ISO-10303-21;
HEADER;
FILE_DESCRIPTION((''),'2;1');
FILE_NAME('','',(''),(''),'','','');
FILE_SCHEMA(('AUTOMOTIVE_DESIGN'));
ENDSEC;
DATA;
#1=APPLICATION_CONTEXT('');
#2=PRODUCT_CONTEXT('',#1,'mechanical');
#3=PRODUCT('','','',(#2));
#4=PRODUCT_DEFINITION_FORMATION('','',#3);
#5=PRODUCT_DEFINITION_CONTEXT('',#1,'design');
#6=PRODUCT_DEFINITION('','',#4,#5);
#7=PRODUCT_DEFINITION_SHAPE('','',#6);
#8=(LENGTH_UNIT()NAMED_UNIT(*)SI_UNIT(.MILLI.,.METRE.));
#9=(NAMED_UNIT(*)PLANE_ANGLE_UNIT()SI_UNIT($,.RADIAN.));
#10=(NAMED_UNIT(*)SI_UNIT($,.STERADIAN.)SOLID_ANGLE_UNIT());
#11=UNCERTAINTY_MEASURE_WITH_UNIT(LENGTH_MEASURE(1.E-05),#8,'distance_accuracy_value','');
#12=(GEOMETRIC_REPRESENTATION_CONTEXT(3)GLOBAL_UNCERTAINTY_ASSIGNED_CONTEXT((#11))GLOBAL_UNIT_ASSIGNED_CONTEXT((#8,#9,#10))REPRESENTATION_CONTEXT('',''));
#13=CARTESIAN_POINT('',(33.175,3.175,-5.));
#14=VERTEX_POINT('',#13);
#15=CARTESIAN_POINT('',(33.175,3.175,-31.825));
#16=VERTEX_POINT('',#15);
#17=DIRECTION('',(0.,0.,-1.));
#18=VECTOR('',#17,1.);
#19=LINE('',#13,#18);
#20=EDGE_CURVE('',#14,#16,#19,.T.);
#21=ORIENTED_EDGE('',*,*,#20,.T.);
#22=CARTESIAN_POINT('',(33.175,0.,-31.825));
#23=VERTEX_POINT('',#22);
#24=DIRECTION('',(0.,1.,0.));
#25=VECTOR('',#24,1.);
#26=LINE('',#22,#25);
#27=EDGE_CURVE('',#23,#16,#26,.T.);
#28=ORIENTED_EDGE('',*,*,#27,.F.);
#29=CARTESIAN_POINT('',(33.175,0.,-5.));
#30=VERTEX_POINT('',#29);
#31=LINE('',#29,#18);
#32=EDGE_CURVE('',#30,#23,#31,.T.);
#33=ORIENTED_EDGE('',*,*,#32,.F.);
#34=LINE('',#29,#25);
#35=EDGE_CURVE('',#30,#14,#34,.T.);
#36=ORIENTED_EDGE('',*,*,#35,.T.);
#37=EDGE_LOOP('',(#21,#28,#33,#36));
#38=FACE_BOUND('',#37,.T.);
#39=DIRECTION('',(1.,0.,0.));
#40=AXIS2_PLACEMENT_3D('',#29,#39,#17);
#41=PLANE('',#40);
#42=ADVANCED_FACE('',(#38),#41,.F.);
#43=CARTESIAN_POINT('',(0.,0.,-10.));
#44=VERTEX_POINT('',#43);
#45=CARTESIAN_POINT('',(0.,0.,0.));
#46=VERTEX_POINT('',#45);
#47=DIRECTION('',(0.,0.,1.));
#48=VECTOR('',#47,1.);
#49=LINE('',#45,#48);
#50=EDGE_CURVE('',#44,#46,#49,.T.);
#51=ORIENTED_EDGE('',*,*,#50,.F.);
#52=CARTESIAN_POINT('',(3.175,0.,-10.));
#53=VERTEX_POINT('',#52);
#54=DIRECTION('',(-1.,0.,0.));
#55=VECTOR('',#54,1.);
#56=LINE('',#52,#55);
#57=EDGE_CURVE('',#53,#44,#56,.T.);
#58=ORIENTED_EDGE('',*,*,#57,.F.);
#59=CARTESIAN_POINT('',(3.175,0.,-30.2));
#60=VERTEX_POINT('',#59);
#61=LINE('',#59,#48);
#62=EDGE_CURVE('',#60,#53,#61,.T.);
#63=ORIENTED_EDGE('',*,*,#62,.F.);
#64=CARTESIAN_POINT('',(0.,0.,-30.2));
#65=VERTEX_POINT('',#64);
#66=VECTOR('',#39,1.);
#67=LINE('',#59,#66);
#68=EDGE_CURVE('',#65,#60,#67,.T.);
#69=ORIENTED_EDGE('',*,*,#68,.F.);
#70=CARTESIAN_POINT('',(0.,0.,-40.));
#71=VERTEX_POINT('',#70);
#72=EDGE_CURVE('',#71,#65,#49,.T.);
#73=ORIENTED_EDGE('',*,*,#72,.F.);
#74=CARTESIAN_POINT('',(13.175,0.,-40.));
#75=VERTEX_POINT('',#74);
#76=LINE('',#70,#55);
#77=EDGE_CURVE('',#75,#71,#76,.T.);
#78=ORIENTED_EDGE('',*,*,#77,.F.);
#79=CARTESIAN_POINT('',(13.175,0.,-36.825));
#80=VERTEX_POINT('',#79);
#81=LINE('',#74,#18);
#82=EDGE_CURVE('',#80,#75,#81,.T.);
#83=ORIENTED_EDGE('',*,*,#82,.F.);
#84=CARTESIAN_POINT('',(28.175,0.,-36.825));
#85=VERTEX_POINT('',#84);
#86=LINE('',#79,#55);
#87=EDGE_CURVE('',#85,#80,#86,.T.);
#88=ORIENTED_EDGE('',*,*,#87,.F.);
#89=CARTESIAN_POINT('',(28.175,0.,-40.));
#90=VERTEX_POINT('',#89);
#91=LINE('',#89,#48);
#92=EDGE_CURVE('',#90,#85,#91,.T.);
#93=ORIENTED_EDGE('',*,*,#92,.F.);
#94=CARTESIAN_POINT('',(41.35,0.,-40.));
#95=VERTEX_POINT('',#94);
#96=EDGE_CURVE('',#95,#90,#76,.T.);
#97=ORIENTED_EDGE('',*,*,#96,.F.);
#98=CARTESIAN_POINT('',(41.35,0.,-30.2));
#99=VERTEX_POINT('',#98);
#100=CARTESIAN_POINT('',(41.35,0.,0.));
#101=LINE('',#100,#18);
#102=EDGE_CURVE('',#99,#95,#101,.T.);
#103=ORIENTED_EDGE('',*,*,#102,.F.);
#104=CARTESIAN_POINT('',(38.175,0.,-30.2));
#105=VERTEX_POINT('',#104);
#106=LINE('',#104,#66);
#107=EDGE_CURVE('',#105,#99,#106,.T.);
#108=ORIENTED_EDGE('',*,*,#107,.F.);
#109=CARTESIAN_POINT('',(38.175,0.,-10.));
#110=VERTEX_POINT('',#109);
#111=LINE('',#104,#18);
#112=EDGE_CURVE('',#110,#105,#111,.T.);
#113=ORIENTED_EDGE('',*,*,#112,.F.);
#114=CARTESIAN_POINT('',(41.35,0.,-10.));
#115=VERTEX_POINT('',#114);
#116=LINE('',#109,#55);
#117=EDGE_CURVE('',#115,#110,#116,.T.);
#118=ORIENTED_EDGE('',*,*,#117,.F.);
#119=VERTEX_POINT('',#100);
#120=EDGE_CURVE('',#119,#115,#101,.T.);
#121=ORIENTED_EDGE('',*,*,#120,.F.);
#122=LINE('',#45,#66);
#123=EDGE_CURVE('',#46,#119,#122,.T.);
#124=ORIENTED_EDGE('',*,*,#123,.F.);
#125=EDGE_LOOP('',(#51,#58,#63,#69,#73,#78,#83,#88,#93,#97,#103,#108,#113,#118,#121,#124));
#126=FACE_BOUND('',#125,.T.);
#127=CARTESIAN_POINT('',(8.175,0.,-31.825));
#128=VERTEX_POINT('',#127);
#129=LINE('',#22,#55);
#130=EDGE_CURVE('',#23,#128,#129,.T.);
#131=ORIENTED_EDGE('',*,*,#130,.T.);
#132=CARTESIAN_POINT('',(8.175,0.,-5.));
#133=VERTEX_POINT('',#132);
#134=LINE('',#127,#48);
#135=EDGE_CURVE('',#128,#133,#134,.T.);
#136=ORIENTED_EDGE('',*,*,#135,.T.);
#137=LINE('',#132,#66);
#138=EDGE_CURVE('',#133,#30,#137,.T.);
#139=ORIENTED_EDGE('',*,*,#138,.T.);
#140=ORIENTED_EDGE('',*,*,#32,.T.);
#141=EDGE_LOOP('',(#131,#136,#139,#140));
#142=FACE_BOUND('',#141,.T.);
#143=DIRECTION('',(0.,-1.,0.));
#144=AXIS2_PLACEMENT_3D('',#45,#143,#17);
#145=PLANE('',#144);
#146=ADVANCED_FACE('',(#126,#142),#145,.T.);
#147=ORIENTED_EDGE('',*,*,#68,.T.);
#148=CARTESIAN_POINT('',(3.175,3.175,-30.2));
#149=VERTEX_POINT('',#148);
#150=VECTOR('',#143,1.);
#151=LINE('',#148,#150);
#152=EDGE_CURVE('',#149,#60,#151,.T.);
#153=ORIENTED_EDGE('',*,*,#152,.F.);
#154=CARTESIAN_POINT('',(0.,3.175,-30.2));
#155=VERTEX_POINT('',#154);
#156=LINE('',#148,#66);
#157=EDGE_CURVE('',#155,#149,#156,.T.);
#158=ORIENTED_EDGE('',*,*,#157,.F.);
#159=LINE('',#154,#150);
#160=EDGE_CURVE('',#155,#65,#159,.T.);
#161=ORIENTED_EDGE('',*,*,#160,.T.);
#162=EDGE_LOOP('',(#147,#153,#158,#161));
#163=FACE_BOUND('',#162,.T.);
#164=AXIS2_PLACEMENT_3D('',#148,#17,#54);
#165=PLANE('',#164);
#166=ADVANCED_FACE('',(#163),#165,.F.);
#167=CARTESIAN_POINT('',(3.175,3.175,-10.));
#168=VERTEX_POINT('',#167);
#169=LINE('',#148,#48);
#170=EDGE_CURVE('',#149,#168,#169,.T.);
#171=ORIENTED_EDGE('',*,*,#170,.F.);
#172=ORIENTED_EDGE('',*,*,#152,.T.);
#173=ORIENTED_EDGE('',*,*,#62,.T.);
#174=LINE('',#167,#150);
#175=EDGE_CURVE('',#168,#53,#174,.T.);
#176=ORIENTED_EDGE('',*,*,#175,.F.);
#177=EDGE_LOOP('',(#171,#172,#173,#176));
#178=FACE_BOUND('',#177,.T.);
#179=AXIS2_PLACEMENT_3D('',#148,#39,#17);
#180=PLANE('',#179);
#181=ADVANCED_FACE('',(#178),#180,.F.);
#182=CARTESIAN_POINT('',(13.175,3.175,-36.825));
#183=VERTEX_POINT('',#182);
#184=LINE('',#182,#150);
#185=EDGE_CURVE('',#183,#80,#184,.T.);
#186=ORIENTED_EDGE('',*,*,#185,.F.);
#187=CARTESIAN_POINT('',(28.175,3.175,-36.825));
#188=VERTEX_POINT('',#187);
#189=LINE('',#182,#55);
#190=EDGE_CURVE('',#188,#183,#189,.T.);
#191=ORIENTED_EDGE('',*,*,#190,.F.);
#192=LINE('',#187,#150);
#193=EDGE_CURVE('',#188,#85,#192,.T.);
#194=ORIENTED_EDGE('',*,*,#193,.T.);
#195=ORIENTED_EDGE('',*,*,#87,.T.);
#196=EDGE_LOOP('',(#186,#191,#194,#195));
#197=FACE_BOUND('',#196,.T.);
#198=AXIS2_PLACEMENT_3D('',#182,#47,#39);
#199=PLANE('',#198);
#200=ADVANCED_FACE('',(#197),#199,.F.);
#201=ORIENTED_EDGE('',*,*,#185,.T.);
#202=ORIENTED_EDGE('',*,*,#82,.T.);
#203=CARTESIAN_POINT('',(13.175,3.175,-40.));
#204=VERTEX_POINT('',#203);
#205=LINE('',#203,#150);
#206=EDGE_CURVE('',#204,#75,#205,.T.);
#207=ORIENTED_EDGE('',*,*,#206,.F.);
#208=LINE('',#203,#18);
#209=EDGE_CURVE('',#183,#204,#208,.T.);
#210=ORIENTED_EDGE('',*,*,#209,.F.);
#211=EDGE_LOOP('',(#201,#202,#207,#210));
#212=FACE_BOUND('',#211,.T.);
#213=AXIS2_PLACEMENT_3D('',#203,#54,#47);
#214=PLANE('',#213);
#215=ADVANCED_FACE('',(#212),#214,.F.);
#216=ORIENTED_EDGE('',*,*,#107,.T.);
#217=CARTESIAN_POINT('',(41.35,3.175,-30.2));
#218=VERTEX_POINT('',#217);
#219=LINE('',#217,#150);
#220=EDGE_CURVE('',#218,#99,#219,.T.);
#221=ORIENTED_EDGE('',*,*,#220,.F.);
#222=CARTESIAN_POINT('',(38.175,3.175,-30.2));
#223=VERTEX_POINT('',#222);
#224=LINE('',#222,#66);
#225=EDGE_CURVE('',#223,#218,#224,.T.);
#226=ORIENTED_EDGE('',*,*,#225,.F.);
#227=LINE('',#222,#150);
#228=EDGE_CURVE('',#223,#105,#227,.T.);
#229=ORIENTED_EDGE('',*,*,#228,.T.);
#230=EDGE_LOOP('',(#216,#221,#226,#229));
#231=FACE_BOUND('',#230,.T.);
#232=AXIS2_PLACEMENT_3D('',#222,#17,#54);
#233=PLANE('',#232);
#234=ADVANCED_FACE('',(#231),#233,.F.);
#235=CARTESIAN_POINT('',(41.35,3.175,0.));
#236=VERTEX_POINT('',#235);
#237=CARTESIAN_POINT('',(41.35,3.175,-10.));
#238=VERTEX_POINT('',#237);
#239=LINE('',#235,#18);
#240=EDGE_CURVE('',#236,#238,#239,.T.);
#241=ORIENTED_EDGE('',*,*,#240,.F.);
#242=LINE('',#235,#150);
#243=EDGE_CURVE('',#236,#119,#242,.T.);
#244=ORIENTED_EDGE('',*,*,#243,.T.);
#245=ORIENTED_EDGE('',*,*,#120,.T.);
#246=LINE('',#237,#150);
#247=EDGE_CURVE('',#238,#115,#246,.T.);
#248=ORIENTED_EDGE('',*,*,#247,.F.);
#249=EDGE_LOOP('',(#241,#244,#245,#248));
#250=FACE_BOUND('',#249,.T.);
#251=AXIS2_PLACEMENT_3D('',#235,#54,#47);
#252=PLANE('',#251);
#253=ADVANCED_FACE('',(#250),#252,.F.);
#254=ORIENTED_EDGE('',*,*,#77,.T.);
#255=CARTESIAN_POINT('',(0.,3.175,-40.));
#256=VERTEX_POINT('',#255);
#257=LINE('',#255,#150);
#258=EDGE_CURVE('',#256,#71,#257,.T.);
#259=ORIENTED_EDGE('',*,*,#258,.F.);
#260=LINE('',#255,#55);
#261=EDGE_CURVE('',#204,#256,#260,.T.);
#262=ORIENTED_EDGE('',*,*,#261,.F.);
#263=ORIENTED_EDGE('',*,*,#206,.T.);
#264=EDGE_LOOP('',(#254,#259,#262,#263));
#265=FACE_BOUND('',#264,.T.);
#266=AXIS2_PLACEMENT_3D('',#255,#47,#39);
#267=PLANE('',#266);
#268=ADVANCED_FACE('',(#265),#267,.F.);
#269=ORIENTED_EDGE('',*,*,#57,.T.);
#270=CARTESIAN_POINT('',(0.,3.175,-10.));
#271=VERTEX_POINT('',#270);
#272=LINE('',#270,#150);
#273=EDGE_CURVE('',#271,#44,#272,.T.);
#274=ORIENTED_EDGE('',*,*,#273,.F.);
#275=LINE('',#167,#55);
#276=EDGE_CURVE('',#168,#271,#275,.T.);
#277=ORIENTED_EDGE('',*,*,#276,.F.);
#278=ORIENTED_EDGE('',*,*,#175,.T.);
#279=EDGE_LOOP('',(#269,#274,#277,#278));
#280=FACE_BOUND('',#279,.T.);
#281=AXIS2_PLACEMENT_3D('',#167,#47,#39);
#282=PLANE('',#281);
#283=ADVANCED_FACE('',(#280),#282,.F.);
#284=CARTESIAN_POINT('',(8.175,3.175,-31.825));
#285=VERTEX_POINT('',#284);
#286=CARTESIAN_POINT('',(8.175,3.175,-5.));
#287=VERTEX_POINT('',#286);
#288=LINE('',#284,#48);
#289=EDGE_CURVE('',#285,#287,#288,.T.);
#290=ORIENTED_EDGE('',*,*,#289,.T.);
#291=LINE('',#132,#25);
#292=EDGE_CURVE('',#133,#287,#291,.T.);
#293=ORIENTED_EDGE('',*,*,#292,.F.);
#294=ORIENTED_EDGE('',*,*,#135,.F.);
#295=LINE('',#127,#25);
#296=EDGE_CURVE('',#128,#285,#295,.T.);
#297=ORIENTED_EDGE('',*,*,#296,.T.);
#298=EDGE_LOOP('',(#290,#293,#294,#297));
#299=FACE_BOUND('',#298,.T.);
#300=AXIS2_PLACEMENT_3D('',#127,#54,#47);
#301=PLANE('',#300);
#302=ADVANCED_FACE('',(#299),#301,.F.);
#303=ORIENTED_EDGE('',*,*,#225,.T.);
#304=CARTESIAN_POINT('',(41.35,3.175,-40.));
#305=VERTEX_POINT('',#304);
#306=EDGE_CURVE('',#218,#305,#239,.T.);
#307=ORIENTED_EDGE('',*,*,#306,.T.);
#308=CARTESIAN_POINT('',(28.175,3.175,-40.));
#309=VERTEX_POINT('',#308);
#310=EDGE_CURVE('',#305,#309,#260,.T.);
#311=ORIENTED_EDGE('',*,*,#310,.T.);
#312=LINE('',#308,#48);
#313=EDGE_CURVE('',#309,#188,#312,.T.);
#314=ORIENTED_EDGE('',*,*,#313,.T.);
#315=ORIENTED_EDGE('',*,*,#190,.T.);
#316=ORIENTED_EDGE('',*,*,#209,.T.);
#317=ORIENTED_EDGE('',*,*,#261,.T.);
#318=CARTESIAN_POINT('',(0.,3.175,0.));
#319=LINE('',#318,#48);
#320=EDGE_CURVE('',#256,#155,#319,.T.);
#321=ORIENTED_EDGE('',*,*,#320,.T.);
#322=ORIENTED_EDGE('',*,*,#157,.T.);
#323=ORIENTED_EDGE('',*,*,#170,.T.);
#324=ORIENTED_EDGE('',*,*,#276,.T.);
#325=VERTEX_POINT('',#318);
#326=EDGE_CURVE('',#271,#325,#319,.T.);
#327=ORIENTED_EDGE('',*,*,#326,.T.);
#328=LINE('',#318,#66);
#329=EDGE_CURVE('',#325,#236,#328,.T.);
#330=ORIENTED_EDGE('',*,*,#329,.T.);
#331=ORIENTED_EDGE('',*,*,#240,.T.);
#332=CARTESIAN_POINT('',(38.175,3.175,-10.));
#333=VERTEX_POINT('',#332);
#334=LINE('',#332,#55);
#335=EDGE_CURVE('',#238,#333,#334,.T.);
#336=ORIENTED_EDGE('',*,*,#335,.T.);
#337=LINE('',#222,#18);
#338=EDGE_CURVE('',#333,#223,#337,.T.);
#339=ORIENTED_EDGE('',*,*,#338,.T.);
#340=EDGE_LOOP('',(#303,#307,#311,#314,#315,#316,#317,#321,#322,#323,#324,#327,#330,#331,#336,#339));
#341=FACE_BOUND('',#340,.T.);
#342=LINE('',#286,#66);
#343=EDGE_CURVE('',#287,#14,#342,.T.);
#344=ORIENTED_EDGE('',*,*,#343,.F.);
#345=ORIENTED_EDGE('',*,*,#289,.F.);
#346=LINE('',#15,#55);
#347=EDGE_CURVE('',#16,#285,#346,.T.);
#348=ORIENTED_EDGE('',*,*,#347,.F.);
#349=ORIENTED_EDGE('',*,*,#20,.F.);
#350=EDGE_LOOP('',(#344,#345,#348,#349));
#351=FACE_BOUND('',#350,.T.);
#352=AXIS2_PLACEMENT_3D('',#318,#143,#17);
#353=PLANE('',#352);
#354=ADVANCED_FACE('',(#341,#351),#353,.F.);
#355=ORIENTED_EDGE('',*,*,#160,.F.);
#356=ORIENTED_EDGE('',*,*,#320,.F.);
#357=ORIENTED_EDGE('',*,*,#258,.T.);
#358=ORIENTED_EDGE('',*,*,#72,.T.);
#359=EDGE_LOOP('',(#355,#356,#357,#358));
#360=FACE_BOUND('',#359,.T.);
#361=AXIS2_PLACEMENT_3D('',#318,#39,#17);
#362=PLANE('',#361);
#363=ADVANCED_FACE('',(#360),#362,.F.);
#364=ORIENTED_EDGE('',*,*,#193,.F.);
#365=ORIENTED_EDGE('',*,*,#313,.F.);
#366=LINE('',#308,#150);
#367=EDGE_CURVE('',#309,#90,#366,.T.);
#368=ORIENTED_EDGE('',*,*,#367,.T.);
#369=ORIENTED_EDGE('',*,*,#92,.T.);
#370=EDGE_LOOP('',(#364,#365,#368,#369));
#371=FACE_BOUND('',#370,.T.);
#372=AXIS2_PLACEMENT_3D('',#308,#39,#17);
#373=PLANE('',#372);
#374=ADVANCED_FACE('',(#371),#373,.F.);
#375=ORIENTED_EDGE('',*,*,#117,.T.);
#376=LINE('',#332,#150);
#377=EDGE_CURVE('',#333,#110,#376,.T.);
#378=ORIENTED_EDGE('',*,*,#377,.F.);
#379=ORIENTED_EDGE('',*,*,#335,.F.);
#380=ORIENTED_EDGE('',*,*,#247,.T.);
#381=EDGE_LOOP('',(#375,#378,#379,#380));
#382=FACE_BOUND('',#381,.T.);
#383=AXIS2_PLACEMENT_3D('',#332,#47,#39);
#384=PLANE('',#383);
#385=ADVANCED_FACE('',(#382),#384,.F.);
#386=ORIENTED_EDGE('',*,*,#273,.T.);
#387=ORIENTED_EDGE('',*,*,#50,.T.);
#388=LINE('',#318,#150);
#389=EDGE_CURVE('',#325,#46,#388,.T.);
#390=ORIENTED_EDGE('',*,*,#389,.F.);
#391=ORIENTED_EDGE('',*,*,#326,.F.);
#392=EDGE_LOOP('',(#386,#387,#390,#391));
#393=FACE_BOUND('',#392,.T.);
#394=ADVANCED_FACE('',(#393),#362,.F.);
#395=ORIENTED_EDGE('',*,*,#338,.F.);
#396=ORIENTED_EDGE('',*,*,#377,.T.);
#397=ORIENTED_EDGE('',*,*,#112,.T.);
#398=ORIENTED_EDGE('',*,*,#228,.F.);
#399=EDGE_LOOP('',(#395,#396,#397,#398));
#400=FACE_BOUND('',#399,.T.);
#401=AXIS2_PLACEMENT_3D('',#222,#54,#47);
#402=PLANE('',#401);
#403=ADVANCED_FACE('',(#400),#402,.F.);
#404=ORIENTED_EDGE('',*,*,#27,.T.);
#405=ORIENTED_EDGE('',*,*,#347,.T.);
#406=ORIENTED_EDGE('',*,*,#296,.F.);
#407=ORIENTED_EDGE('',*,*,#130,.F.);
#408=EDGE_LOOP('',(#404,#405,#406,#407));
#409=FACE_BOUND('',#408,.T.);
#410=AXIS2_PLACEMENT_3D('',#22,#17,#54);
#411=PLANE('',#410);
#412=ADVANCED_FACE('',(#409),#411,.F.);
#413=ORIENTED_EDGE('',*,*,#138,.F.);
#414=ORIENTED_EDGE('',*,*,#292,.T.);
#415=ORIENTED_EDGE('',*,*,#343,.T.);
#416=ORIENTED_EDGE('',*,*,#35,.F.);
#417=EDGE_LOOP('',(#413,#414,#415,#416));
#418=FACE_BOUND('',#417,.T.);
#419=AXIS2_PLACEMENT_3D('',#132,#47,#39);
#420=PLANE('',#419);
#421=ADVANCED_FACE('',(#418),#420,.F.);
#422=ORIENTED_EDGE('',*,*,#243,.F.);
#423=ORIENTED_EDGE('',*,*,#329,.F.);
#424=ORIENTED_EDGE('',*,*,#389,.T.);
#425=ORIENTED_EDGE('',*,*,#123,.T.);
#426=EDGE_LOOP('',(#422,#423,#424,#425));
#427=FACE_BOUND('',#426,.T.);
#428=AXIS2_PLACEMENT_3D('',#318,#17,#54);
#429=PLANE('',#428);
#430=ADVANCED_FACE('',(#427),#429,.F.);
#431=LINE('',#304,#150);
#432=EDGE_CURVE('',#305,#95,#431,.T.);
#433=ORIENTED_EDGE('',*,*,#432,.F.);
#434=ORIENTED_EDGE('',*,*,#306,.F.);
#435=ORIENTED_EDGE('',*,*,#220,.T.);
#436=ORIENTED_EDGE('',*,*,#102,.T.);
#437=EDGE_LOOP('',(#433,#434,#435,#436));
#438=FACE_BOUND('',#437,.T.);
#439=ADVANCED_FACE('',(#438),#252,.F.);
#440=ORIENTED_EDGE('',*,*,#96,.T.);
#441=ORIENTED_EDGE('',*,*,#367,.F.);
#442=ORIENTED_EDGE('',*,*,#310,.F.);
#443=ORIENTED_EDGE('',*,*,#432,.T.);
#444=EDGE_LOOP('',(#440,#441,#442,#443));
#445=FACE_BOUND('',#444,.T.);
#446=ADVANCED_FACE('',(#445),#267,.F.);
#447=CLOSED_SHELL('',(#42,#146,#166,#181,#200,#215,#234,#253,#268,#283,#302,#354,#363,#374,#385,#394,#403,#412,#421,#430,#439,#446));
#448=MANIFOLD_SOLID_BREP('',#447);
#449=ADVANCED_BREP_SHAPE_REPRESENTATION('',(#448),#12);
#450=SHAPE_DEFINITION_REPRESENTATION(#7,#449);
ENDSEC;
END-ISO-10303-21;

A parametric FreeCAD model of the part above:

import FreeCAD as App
import Part
import Sketcher
from FreeCAD import Vector

doc = App.newDocument("Part")
params = doc.addObject("Spreadsheet::Sheet", "Params")
for row, (alias, value) in enumerate([
    ("sketch1_height", "40 mm"),
    ("sketch1_width", "41.35 mm"),
    ("pad1_length", "3.175 mm"),
    ("sketch2_width", "15 mm"),
    ("sketch2_height", "20.2 mm"),
    ("sketch3_width", "25 mm"),
], start=1):
    params.set(f"A{row}", alias)
    params.set(f"B{row}", "=" + value)
    params.setAlias(f"B{row}", alias)

body = doc.addObject("PartDesign::Body", "Body")

# Sketch on XZ plane
sketch1 = body.newObject("Sketcher::SketchObject", "Sketch")
sketch1.AttachmentSupport = (doc.getObject("XZ_Plane"), [""])
sketch1.MapMode = "FlatFace"
sketch1.addGeometry([
    Part.LineSegment(Vector(0, -40, 0), Vector(0, 0, 0)),
    Part.LineSegment(Vector(0, 0, 0), Vector(41.35, 0, 0)),
    Part.LineSegment(Vector(41.35, 0, 0), Vector(41.35, -40, 0)),
    Part.LineSegment(Vector(41.35, -40, 0), Vector(0, -40, 0)),
], False)
sketch1.addConstraint([
    Sketcher.Constraint("Coincident", 0, 2, 1, 1),
    Sketcher.Constraint("Coincident", 1, 2, 2, 1),
    Sketcher.Constraint("Coincident", 2, 2, 3, 1),
    Sketcher.Constraint("Coincident", 3, 2, 0, 1),
    Sketcher.Constraint("Vertical", 0),
    Sketcher.Constraint("Horizontal", 1),
    Sketcher.Constraint("Vertical", 2),
    Sketcher.Constraint("Horizontal", 3),
    Sketcher.Constraint("Coincident", 0, 2, -1, 1),
    Sketcher.Constraint("DistanceY", 0, 1, 0, 2, 40.0),
    Sketcher.Constraint("DistanceX", 1, 1, 1, 2, 41.35),
])
sketch1.setExpression("Constraints[9]", "Params.sketch1_height")
sketch1.setExpression("Constraints[10]", "Params.sketch1_width")
pad1 = body.newObject("PartDesign::Pad", "Pad")
pad1.Profile = sketch1
pad1.setExpression("Length", "Params.pad1_length")
pad1.Reversed = True

# Sketch on XZ plane
sketch2 = body.newObject("Sketcher::SketchObject", "Sketch001")
sketch2.AttachmentSupport = (doc.getObject("XZ_Plane"), [""])
sketch2.MapMode = "FlatFace"
sketch2.addGeometry([
    Part.LineSegment(Vector(38.175, -10, 0), Vector(38.175, -30.2, 0)),  # 0
    Part.LineSegment(Vector(38.175, -30.2, 0), Vector(41.35, -30.2, 0)),  # 1
    Part.LineSegment(Vector(41.35, -30.2, 0), Vector(41.35, -10, 0)),  # 2
    Part.LineSegment(Vector(41.35, -10, 0), Vector(38.175, -10, 0)),  # 3
    Part.LineSegment(Vector(0, -10, 0), Vector(0, -30.2, 0)),  # 4
    Part.LineSegment(Vector(0, -30.2, 0), Vector(3.175, -30.2, 0)),  # 5
    Part.LineSegment(Vector(3.175, -30.2, 0), Vector(3.175, -10, 0)),  # 6
    Part.LineSegment(Vector(3.175, -10, 0), Vector(0, -10, 0)),  # 7
    Part.LineSegment(Vector(13.175, -36.825, 0), Vector(13.175, -40, 0)),  # 8
    Part.LineSegment(Vector(13.175, -40, 0), Vector(28.175, -40, 0)),  # 9
    Part.LineSegment(Vector(28.175, -40, 0), Vector(28.175, -36.825, 0)),  # 10
    Part.LineSegment(Vector(28.175, -36.825, 0), Vector(13.175, -36.825, 0)),  # 11
], False)
sketch2.addConstraint([
    Sketcher.Constraint("Coincident", 0, 2, 1, 1),
    Sketcher.Constraint("Coincident", 1, 2, 2, 1),
    Sketcher.Constraint("Coincident", 2, 2, 3, 1),
    Sketcher.Constraint("Coincident", 3, 2, 0, 1),
    Sketcher.Constraint("Coincident", 4, 2, 5, 1),
    Sketcher.Constraint("Coincident", 5, 2, 6, 1),
    Sketcher.Constraint("Coincident", 6, 2, 7, 1),
    Sketcher.Constraint("Coincident", 7, 2, 4, 1),
    Sketcher.Constraint("Coincident", 8, 2, 9, 1),
    Sketcher.Constraint("Coincident", 9, 2, 10, 1),
    Sketcher.Constraint("Coincident", 10, 2, 11, 1),
    Sketcher.Constraint("Coincident", 11, 2, 8, 1),
    Sketcher.Constraint("Vertical", 0),
    Sketcher.Constraint("Horizontal", 1),
    Sketcher.Constraint("Vertical", 2),
    Sketcher.Constraint("Horizontal", 3),
    Sketcher.Constraint("Vertical", 4),
    Sketcher.Constraint("Horizontal", 5),
    Sketcher.Constraint("Vertical", 6),
    Sketcher.Constraint("Horizontal", 7),
    Sketcher.Constraint("Vertical", 8),
    Sketcher.Constraint("Horizontal", 9),
    Sketcher.Constraint("Vertical", 10),
    Sketcher.Constraint("Horizontal", 11),
    Sketcher.Constraint("PointOnObject", 4, 2, -2),
    Sketcher.Constraint("Horizontal", 1, 2, 4, 2),
    Sketcher.Constraint("Horizontal", 3, 2, 6, 2),
    Sketcher.Constraint("Equal", 3, 5),
    Sketcher.Constraint("Equal", 7, 8),
    Sketcher.Constraint("DistanceX", 9, 1, 9, 2, 15.0),
    Sketcher.Constraint("DistanceY", 0, 2, 0, 1, 20.2),
    Sketcher.Constraint("DistanceY", 2, 2, -1, 1, 10.0),
    Sketcher.Constraint("DistanceY", 8, 2, -1, 1, 40.0),
    Sketcher.Constraint("DistanceX", 5, 2, 0, 2, 35.0),
    Sketcher.Constraint("DistanceX", 5, 2, 8, 2, 10.0),
    Sketcher.Constraint("DistanceX", 1, 1, 1, 2, 3.175),
])
sketch2.setExpression("Constraints[29]", "Params.sketch2_width")
sketch2.setExpression("Constraints[30]", "Params.sketch2_height")
pocket1 = body.newObject("PartDesign::Pocket", "Pocket")
pocket1.Profile = sketch2
pocket1.Type = "ThroughAll"

# Sketch on XZ plane
sketch3 = body.newObject("Sketcher::SketchObject", "Sketch002")
sketch3.AttachmentSupport = (doc.getObject("XZ_Plane"), [""])
sketch3.MapMode = "FlatFace"
sketch3.AttachmentOffset = App.Placement(Vector(0, 0, -3.175), App.Rotation())
sketch3.addGeometry([
    Part.LineSegment(Vector(8.175, -31.825, 0), Vector(8.175, -5, 0)),
    Part.LineSegment(Vector(8.175, -5, 0), Vector(33.175, -5, 0)),
    Part.LineSegment(Vector(33.175, -5, 0), Vector(33.175, -31.825, 0)),
    Part.LineSegment(Vector(33.175, -31.825, 0), Vector(8.175, -31.825, 0)),
], False)
sketch3.addConstraint([
    Sketcher.Constraint("Coincident", 0, 2, 1, 1),
    Sketcher.Constraint("Coincident", 1, 2, 2, 1),
    Sketcher.Constraint("Coincident", 2, 2, 3, 1),
    Sketcher.Constraint("Coincident", 3, 2, 0, 1),
    Sketcher.Constraint("Vertical", 0),
    Sketcher.Constraint("Horizontal", 1),
    Sketcher.Constraint("Vertical", 2),
    Sketcher.Constraint("Horizontal", 3),
    Sketcher.Constraint("DistanceX", 1, 1, 1, 2, 25.0),
    Sketcher.Constraint("DistanceY", 0, 2, -1, 1, 5.0),
    Sketcher.Constraint("DistanceY", 0, 1, 0, 2, 26.825),
    Sketcher.Constraint("DistanceX", -1, 1, 0, 2, 8.175),
])
sketch3.setExpression("Constraints[8]", "Params.sketch3_width")
pocket2 = body.newObject("PartDesign::Pocket", "Pocket001")
pocket2.Profile = sketch3
pocket2.Type = "ThroughAll"
pocket2.Reversed = True

doc.recompute()
